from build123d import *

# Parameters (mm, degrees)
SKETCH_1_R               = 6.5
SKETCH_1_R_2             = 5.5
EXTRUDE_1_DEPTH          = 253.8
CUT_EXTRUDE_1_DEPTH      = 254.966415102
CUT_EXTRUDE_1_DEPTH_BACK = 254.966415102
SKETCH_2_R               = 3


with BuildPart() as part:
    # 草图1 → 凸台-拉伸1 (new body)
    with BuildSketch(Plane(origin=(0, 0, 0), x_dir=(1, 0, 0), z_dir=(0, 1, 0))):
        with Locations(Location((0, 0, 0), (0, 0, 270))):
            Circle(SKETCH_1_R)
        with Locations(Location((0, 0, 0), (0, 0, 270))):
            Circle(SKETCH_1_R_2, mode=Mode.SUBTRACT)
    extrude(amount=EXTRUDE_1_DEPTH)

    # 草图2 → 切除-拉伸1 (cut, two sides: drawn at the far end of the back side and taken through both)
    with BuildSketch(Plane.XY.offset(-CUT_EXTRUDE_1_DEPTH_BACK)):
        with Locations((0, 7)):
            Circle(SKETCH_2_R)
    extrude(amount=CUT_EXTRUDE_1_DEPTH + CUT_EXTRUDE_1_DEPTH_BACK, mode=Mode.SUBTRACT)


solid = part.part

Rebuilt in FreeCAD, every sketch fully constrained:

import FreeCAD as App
import Part
import Sketcher

V = App.Vector

doc = App.newDocument("Part")
body = doc.addObject("PartDesign::Body", "Body")

sketch1 = body.newObject("Sketcher::SketchObject", "Sketch")
sketch1.AttachmentSupport = (doc.getObject("XZ_Plane"), [""])
sketch1.MapMode = "FlatFace"
sketch1.addGeometry(Part.Circle(V(0, 0, 0), V(0, 0, 1), 6), False)
sketch1.addGeometry(Part.Circle(V(0, 0, 0), V(0, 0, 1), 6), False)
sketch1.addConstraint(Sketcher.Constraint("Coincident", 0, 3, -1, 1))
sketch1.addConstraint(Sketcher.Constraint("Coincident", 1, 3, -1, 1))
sketch1.addConstraint(Sketcher.Constraint("Diameter", 0, 13.0))
sketch1.addConstraint(Sketcher.Constraint("Diameter", 1, 11.0))
pad1 = body.newObject("PartDesign::Pad", "Pad")
pad1.Profile = sketch1
pad1.Length = 253.8
pad1.Reversed = True

sketch2 = body.newObject("Sketcher::SketchObject", "Sketch001")
sketch2.AttachmentSupport = (doc.getObject("XY_Plane"), [""])
sketch2.MapMode = "FlatFace"
sketch2.addGeometry(Part.Circle(V(0, 7, 0), V(0, 0, 1), 3), False)
sketch2.addConstraint(Sketcher.Constraint("PointOnObject", 0, 3, -2))
sketch2.addConstraint(Sketcher.Constraint("Diameter", 0, 6.0))
sketch2.addConstraint(Sketcher.Constraint("DistanceY", -1, 1, 0, 3, 7.0))
pocket1 = body.newObject("PartDesign::Pocket", "Pocket")
pocket1.Profile = sketch2
pocket1.Type = "ThroughAll"
pocket1.Midplane = True

doc.recompute()
